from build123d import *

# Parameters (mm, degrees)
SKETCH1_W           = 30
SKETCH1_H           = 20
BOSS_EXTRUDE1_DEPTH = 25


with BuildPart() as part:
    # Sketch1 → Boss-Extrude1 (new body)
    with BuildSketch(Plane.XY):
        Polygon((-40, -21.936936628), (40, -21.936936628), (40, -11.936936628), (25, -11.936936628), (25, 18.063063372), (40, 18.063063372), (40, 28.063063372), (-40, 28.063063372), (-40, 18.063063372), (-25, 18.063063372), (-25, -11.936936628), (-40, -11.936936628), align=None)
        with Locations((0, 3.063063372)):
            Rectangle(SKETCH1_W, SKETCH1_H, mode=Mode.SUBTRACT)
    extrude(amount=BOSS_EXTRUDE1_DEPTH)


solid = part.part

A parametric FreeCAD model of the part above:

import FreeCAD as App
import Part
import Sketcher

doc = App.newDocument("Part")
body = doc.addObject("PartDesign::Body", "Body")

# Sketch on XY plane
sketch1 = body.newObject("Sketcher::SketchObject", "Sketch")
sketch1.AttachmentSupport = (doc.getObject("XY_Plane"), [""])
sketch1.MapMode = "FlatFace"
sketch1.addGeometry([
    Part.LineSegment(App.Vector(-40, -21.936937, 0), App.Vector(40, -21.936937, 0)),  # 0
    Part.LineSegment(App.Vector(40, -21.936937, 0), App.Vector(40, -11.936937, 0)),  # 1
    Part.LineSegment(App.Vector(40, -11.936937, 0), App.Vector(25, -11.936937, 0)),  # 2
    Part.LineSegment(App.Vector(25, -11.936937, 0), App.Vector(25, 18.063063, 0)),  # 3
    Part.LineSegment(App.Vector(25, 18.063063, 0), App.Vector(40, 18.063063, 0)),  # 4
    Part.LineSegment(App.Vector(40, 18.063063, 0), App.Vector(40, 28.063063, 0)),  # 5
    Part.LineSegment(App.Vector(40, 28.063063, 0), App.Vector(-40, 28.063063, 0)),  # 6
    Part.LineSegment(App.Vector(-40, 28.063063, 0), App.Vector(-40, 18.063063, 0)),  # 7
    Part.LineSegment(App.Vector(-40, 18.063063, 0), App.Vector(-25, 18.063063, 0)),  # 8
    Part.LineSegment(App.Vector(-25, 18.063063, 0), App.Vector(-25, -11.936937, 0)),  # 9
    Part.LineSegment(App.Vector(-25, -11.936937, 0), App.Vector(-40, -11.936937, 0)),  # 10
    Part.LineSegment(App.Vector(-40, -11.936937, 0), App.Vector(-40, -21.936937, 0)),  # 11
    Part.LineSegment(App.Vector(15, -6.936937, 0), App.Vector(-15, -6.936937, 0)),  # 12
    Part.LineSegment(App.Vector(-15, -6.936937, 0), App.Vector(-15, 13.063063, 0)),  # 13
    Part.LineSegment(App.Vector(-15, 13.063063, 0), App.Vector(15, 13.063063, 0)),  # 14
    Part.LineSegment(App.Vector(15, 13.063063, 0), App.Vector(15, -6.936937, 0)),  # 15
], False)
sketch1.addConstraint([
    Sketcher.Constraint("Coincident", 0, 2, 1, 1),
    Sketcher.Constraint("Coincident", 1, 2, 2, 1),
    Sketcher.Constraint("Coincident", 2, 2, 3, 1),
    Sketcher.Constraint("Coincident", 3, 2, 4, 1),
    Sketcher.Constraint("Coincident", 4, 2, 5, 1),
    Sketcher.Constraint("Coincident", 5, 2, 6, 1),
    Sketcher.Constraint("Coincident", 6, 2, 7, 1),
    Sketcher.Constraint("Coincident", 7, 2, 8, 1),
    Sketcher.Constraint("Coincident", 8, 2, 9, 1),
    Sketcher.Constraint("Coincident", 9, 2, 10, 1),
    Sketcher.Constraint("Coincident", 10, 2, 11, 1),
    Sketcher.Constraint("Coincident", 11, 2, 0, 1),
    Sketcher.Constraint("Coincident", 12, 2, 13, 1),
    Sketcher.Constraint("Coincident", 13, 2, 14, 1),
    Sketcher.Constraint("Coincident", 14, 2, 15, 1),
    Sketcher.Constraint("Coincident", 15, 2, 12, 1),
    Sketcher.Constraint("Horizontal", 0),
    Sketcher.Constraint("Vertical", 1),
    Sketcher.Constraint("Horizontal", 2),
    Sketcher.Constraint("Vertical", 3),
    Sketcher.Constraint("Horizontal", 4),
    Sketcher.Constraint("Vertical", 5),
    Sketcher.Constraint("Horizontal", 6),
    Sketcher.Constraint("Vertical", 7),
    Sketcher.Constraint("Horizontal", 8),
    Sketcher.Constraint("Vertical", 9),
    Sketcher.Constraint("Horizontal", 10),
    Sketcher.Constraint("Vertical", 11),
    Sketcher.Constraint("Horizontal", 12),
    Sketcher.Constraint("Vertical", 13),
    Sketcher.Constraint("Horizontal", 14),
    Sketcher.Constraint("Vertical", 15),
    Sketcher.Constraint("Symmetric", 4, 2, 7, 2, -2),
    Sketcher.Constraint("Symmetric", 2, 2, 9, 2, -2),
    Sketcher.Constraint("Vertical", 1, 2, 4, 2),
    Sketcher.Constraint("Vertical", 7, 2, 10, 2),
    Sketcher.Constraint("Equal", 14, 3),
    Sketcher.Constraint("Equal", 1, 5),
    Sketcher.Constraint("DistanceX", 0, 1, 0, 2, 80.0),
    Sketcher.Constraint("DistanceX", 2, 2, 2, 1, 15.0),
    Sketcher.Constraint("DistanceX", 12, 2, 12, 1, 30.0),
    Sketcher.Constraint("DistanceY", 1, 1, 1, 2, 10.0),
    Sketcher.Constraint("DistanceY", 13, 1, 13, 2, 20.0),
    Sketcher.Constraint("DistanceX", 12, 2, -1, 1, 15.0),
    Sketcher.Constraint("DistanceY", 9, 2, 12, 2, 5.0),
    Sketcher.Constraint("DistanceY", 0, 2, -1, 1, 21.936937),
])
pad1 = body.newObject("PartDesign::Pad", "Pad")
pad1.Profile = sketch1
pad1.Length = 25

doc.recompute()
